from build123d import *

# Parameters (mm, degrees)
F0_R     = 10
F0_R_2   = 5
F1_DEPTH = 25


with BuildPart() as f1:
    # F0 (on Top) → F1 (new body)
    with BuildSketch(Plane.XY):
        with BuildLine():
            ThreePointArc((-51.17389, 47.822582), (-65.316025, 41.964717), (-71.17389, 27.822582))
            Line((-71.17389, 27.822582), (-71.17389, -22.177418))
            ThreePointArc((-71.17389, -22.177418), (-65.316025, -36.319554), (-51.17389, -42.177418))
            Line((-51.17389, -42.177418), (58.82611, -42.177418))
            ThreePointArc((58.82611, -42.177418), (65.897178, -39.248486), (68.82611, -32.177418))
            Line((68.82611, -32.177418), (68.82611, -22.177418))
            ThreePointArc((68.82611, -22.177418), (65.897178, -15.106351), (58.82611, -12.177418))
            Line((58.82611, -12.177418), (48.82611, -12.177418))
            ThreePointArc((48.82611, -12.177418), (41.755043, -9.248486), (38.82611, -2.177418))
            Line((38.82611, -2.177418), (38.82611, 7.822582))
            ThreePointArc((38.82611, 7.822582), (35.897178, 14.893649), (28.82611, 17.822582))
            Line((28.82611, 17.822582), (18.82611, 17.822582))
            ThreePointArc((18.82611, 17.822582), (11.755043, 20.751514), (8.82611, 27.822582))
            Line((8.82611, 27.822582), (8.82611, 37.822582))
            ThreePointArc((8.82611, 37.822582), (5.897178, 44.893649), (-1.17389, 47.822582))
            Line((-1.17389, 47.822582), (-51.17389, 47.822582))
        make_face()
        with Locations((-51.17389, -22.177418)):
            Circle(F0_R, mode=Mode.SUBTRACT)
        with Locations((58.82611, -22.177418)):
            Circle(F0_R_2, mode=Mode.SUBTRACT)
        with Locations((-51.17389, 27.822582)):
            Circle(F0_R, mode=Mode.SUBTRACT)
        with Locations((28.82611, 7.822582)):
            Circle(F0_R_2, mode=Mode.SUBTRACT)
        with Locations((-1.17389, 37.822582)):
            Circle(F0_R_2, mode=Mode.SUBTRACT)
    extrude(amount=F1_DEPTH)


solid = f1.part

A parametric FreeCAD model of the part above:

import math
import FreeCAD as App
import Part
import Sketcher

V = App.Vector

doc = App.newDocument("Part")
body = doc.addObject("PartDesign::Body", "Body")

sketch1 = body.newObject("Sketcher::SketchObject", "Sketch")
sketch1.AttachmentSupport = (doc.getObject("XY_Plane"), [""])
sketch1.MapMode = "FlatFace"
sketch1.addGeometry(Part.ArcOfCircle(Part.Circle(V(-51.173888, 27.82258, 0), V(0, 0, 1), 20.000002), math.radians(90.000006), math.radians(179.999994)), False)
sketch1.addGeometry(Part.LineSegment(V(-71.17389, 27.822582, 0), V(-71.17389, -22.177418, 0)), False)
sketch1.addGeometry(Part.ArcOfCircle(Part.Circle(V(-51.17389, -22.177418, 0), V(0, 0, 1), 20), math.radians(-179.999999), math.radians(-90.000001)), False)
sketch1.addGeometry(Part.LineSegment(V(-51.17389, -42.177418, 0), V(58.82611, -42.177418, 0)), False)
sketch1.addGeometry(Part.ArcOfCircle(Part.Circle(V(58.826111, -32.177419, 0), V(0, 0, 1), 9.999999), math.radians(-90.000004), math.radians(0.000004)), False)
sketch1.addGeometry(Part.LineSegment(V(68.82611, -32.177418, 0), V(68.82611, -22.177418, 0)), False)
sketch1.addGeometry(Part.ArcOfCircle(Part.Circle(V(58.826109, -22.177419, 0), V(0, 0, 1), 10.000001), math.radians(0.000006), math.radians(89.999994)), False)
sketch1.addGeometry(Part.LineSegment(V(58.82611, -12.177418, 0), V(48.82611, -12.177418, 0)), False)
sketch1.addGeometry(Part.ArcOfCircle(Part.Circle(V(48.826111, -2.177417, 0), V(0, 0, 1), 10.000001), math.radians(-179.999994), math.radians(-90.000006)), False)
sketch1.addGeometry(Part.LineSegment(V(38.82611, -2.177418, 0), V(38.82611, 7.822582, 0)), False)
sketch1.addGeometry(Part.ArcOfCircle(Part.Circle(V(28.826109, 7.822581, 0), V(0, 0, 1), 10.000001), math.radians(0.000006), math.radians(89.999994)), False)
sketch1.addGeometry(Part.LineSegment(V(28.82611, 17.822582, 0), V(18.82611, 17.822582, 0)), False)
sketch1.addGeometry(Part.ArcOfCircle(Part.Circle(V(18.826111, 27.822583, 0), V(0, 0, 1), 10.000001), math.radians(-179.999994), math.radians(-90.000006)), False)
sketch1.addGeometry(Part.LineSegment(V(8.82611, 27.822582, 0), V(8.82611, 37.822582, 0)), False)
sketch1.addGeometry(Part.ArcOfCircle(Part.Circle(V(-1.173891, 37.822581, 0), V(0, 0, 1), 10.000001), math.radians(0.000006), math.radians(89.999994)), False)
sketch1.addGeometry(Part.LineSegment(V(-1.17389, 47.822582, 0), V(-51.17389, 47.822582, 0)), False)
sketch1.addGeometry(Part.Circle(V(-51.17389, -22.177418, 0), V(0, 0, 1), 10), False)
sketch1.addGeometry(Part.Circle(V(58.82611, -22.177418, 0), V(0, 0, 1), 5), False)
sketch1.addGeometry(Part.Circle(V(-51.17389, 27.822582, 0), V(0, 0, 1), 10), False)
sketch1.addGeometry(Part.Circle(V(-1.17389, 37.822582, 0), V(0, 0, 1), 5), False)
sketch1.addGeometry(Part.Circle(V(28.82611, 7.822582, 0), V(0, 0, 1), 5), False)
sketch1.addConstraint(Sketcher.Constraint("Tangent", 0, 2, 1, 1))
sketch1.addConstraint(Sketcher.Constraint("Tangent", 1, 2, 2, 1))
sketch1.addConstraint(Sketcher.Constraint("Tangent", 2, 2, 3, 1))
sketch1.addConstraint(Sketcher.Constraint("Tangent", 3, 2, 4, 1))
sketch1.addConstraint(Sketcher.Constraint("Tangent", 4, 2, 5, 1))
sketch1.addConstraint(Sketcher.Constraint("Tangent", 5, 2, 6, 1))
sketch1.addConstraint(Sketcher.Constraint("Tangent", 6, 2, 7, 1))
sketch1.addConstraint(Sketcher.Constraint("Tangent", 7, 2, 8, 2))
sketch1.addConstraint(Sketcher.Constraint("Tangent", 8, 1, 9, 1))
sketch1.addConstraint(Sketcher.Constraint("Tangent", 9, 2, 10, 1))
sketch1.addConstraint(Sketcher.Constraint("Tangent", 10, 2, 11, 1))
sketch1.addConstraint(Sketcher.Constraint("Tangent", 11, 2, 12, 2))
sketch1.addConstraint(Sketcher.Constraint("Tangent", 12, 1, 13, 1))
sketch1.addConstraint(Sketcher.Constraint("Tangent", 13, 2, 14, 1))
sketch1.addConstraint(Sketcher.Constraint("Tangent", 14, 2, 15, 1))
sketch1.addConstraint(Sketcher.Constraint("Tangent", 15, 2, 0, 1))
sketch1.addConstraint(Sketcher.Constraint("Vertical", 1))
sketch1.addConstraint(Sketcher.Constraint("Horizontal", 3))
sketch1.addConstraint(Sketcher.Constraint("Vertical", 5))
sketch1.addConstraint(Sketcher.Constraint("Horizontal", 7))
sketch1.addConstraint(Sketcher.Constraint("Vertical", 9))
sketch1.addConstraint(Sketcher.Constraint("Horizontal", 11))
sketch1.addConstraint(Sketcher.Constraint("Vertical", 13))
sketch1.addConstraint(Sketcher.Constraint("Horizontal", 15))
sketch1.addConstraint(Sketcher.Constraint("Coincident", 16, 3, 2, 3))
sketch1.addConstraint(Sketcher.Constraint("Coincident", 17, 3, 6, 3))
sketch1.addConstraint(Sketcher.Constraint("Coincident", 18, 3, 0, 3))
sketch1.addConstraint(Sketcher.Constraint("Coincident", 19, 3, 14, 3))
sketch1.addConstraint(Sketcher.Constraint("Coincident", 20, 3, 10, 3))
sketch1.addConstraint(Sketcher.Constraint("Equal", 0, 2))
sketch1.addConstraint(Sketcher.Constraint("Equal", 4, 6))
sketch1.addConstraint(Sketcher.Constraint("Equal", 6, 8))
sketch1.addConstraint(Sketcher.Constraint("Equal", 8, 10))
sketch1.addConstraint(Sketcher.Constraint("Equal", 10, 12))
sketch1.addConstraint(Sketcher.Constraint("Equal", 12, 14))
sketch1.addConstraint(Sketcher.Constraint("Equal", 14, 16))
sketch1.addConstraint(Sketcher.Constraint("Equal", 16, 18))
sketch1.addConstraint(Sketcher.Constraint("Equal", 17, 19))
sketch1.addConstraint(Sketcher.Constraint("Equal", 19, 20))
sketch1.addConstraint(Sketcher.Constraint("Horizontal", 2, 3, 6, 3))
sketch1.addConstraint(Sketcher.Constraint("Horizontal", 12, 3, 18, 3))
sketch1.addConstraint(Sketcher.Constraint("Equal", 7, 11))
sketch1.addConstraint(Sketcher.Constraint("Equal", 15, 1))
sketch1.addConstraint(Sketcher.Constraint("Equal", 11, 5))
sketch1.addConstraint(Sketcher.Constraint("Equal", 5, 9))
sketch1.addConstraint(Sketcher.Constraint("Diameter", 16, 20.0))
sketch1.addConstraint(Sketcher.Constraint("Diameter", 17, 10.0))
sketch1.addConstraint(Sketcher.Constraint("Radius", 2, 20.0))
sketch1.addConstraint(Sketcher.Constraint("DistanceY", -1, 1, 0, 3, 27.82258))
sketch1.addConstraint(Sketcher.Constraint("DistanceX", 2, 3, -1, 1, 51.17389))
pad1 = body.newObject("PartDesign::Pad", "Pad")
pad1.Profile = sketch1
pad1.Length = 25

doc.recompute()
